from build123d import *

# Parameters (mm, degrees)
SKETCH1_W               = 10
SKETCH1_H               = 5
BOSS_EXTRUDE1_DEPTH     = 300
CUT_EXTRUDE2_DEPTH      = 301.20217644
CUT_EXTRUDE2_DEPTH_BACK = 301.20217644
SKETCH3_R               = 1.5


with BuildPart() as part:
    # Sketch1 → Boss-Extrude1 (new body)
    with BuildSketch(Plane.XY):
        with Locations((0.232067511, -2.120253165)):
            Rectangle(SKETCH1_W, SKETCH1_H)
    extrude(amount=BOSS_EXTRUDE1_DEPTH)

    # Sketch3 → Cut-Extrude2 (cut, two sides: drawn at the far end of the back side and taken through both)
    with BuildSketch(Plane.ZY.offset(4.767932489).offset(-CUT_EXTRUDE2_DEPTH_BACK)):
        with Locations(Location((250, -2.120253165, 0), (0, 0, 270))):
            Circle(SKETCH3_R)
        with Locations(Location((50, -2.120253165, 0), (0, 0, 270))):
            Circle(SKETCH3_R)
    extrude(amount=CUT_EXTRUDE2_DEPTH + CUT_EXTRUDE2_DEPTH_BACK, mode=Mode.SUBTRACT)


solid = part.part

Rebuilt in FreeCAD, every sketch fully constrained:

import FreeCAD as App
import Part
import Sketcher

V = App.Vector


def add_polygon(sketch, points):
    """Adds a closed chain of lines whose ends are joined by coincident constraints."""
    first, n = sketch.GeometryCount, len(points)
    for a, b in zip(points, points[1:] + points[:1]):
        sketch.addGeometry(Part.LineSegment(App.Vector(*a, 0), App.Vector(*b, 0)), False)
    for i in range(n):
        sketch.addConstraint(Sketcher.Constraint("Coincident", first + i, 2, first + (i + 1) % n, 1))

doc = App.newDocument("Part")
params = doc.addObject("Spreadsheet::Sheet", "Params")
for row, (alias, value) in enumerate([
    ("sketch1_width", "10 mm"),
    ("sketch1_height", "5 mm"),
    ("pad1_length", "300 mm"),
    ("sketch2_diameter", "3 mm"),
], start=1):
    params.set(f"A{row}", alias)
    params.set(f"B{row}", "=" + value)
    params.setAlias(f"B{row}", alias)

body = doc.addObject("PartDesign::Body", "Body")

sketch1 = body.newObject("Sketcher::SketchObject", "Sketch")
sketch1.AttachmentSupport = (doc.getObject("XY_Plane"), [""])
sketch1.MapMode = "FlatFace"
add_polygon(sketch1, [(-5, 0), (-5, -5), (5, -5), (5, 0)])
sketch1.addConstraint(Sketcher.Constraint("Vertical", 0))
sketch1.addConstraint(Sketcher.Constraint("Horizontal", 1))
sketch1.addConstraint(Sketcher.Constraint("Vertical", 2))
sketch1.addConstraint(Sketcher.Constraint("Horizontal", 3))
sketch1.addConstraint(Sketcher.Constraint("DistanceX", 1, 1, 1, 2, 10.0))
sketch1.addConstraint(Sketcher.Constraint("DistanceY", 0, 2, 0, 1, 5.0))
sketch1.addConstraint(Sketcher.Constraint("DistanceX", 0, 2, -1, 1, 4.767932))
sketch1.addConstraint(Sketcher.Constraint("DistanceY", 0, 2, -1, 1, 4.620253))
sketch1.setExpression("Constraints[8]", "Params.sketch1_width")
sketch1.setExpression("Constraints[9]", "Params.sketch1_height")
pad1 = body.newObject("PartDesign::Pad", "Pad")
pad1.Profile = sketch1
pad1.setExpression("Length", "Params.pad1_length")

sketch2 = body.newObject("Sketcher::SketchObject", "Sketch001")
sketch2.AttachmentSupport = (doc.getObject("YZ_Plane"), [""])
sketch2.MapMode = "FlatFace"
sketch2.AttachmentOffset = App.Placement(V(0, 0, -4.767932), App.Rotation())
sketch2.addGeometry(Part.Circle(V(-2.1, 250, 0), V(0, 0, 1), 1.5), False)
sketch2.addGeometry(Part.Circle(V(-2.1, 50, 0), V(0, 0, 1), 1.5), False)
sketch2.addConstraint(Sketcher.Constraint("Equal", 0, 1))
sketch2.addConstraint(Sketcher.Constraint("Vertical", 0, 3, 1, 3))
sketch2.addConstraint(Sketcher.Constraint("Diameter", 0, 3.0))
sketch2.addConstraint(Sketcher.Constraint("DistanceY", -1, 1, 0, 3, 250.0))
sketch2.addConstraint(Sketcher.Constraint("DistanceY", -1, 1, 1, 3, 50.0))
sketch2.addConstraint(Sketcher.Constraint("DistanceX", 0, 3, -1, 1, 2.120253))
sketch2.setExpression("Constraints[2]", "Params.sketch2_diameter")
pocket1 = body.newObject("PartDesign::Pocket", "Pocket")
pocket1.Profile = sketch2
pocket1.Type = "ThroughAll"
pocket1.Midplane = True

doc.recompute()
